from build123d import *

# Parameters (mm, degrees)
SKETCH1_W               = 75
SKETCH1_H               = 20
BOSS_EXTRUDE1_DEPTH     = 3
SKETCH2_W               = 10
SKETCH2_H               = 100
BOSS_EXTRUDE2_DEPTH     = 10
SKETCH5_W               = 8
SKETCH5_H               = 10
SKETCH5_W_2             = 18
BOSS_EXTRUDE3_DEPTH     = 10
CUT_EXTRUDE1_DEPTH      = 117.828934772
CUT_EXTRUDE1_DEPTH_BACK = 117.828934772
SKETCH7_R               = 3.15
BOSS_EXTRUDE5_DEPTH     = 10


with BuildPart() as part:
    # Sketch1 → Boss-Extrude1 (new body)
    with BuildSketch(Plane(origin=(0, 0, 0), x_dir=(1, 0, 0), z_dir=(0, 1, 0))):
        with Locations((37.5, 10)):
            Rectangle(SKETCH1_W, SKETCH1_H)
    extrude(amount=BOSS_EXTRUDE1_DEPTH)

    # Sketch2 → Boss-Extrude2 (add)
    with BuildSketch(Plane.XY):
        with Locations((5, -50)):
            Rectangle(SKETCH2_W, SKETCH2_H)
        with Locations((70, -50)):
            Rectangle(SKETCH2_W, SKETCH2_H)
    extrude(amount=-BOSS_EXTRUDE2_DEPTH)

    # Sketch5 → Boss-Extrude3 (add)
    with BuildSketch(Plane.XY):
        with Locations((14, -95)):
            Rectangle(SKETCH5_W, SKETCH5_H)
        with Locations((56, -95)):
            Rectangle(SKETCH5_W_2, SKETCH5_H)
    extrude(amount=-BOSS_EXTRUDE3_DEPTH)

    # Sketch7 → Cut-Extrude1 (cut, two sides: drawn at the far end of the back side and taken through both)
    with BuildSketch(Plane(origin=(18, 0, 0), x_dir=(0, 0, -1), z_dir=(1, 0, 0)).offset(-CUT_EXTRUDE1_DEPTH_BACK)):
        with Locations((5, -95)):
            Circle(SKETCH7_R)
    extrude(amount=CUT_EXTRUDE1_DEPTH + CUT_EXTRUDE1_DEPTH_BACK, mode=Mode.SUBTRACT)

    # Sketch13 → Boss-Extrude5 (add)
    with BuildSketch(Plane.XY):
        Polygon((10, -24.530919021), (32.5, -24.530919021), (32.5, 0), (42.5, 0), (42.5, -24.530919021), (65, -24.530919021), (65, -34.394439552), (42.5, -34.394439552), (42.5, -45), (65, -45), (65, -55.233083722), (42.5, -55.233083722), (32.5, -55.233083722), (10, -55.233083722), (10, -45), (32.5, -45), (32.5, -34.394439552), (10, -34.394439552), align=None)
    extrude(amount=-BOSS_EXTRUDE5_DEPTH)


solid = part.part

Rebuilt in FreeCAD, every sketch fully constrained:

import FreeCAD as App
import Part
import Sketcher


def add_polygon(sketch, points):
    """Adds a closed chain of lines whose ends are joined by coincident constraints."""
    first, n = sketch.GeometryCount, len(points)
    for a, b in zip(points, points[1:] + points[:1]):
        sketch.addGeometry(Part.LineSegment(App.Vector(*a, 0), App.Vector(*b, 0)), False)
    for i in range(n):
        sketch.addConstraint(Sketcher.Constraint("Coincident", first + i, 2, first + (i + 1) % n, 1))

doc = App.newDocument("Part")
params = doc.addObject("Spreadsheet::Sheet", "Params")
for row, (alias, value) in enumerate([
    ("sketch1_width", "75 mm"),
    ("sketch1_height", "20 mm"),
    ("pad1_length", "3 mm"),
    ("sketch2_width", "10 mm"),
    ("sketch2_height", "100 mm"),
    ("pad2_length", "10 mm"),
    ("sketch3_width", "8 mm"),
    ("sketch3_width2", "18 mm"),
    ("sketch3_height", "10 mm"),
    ("pad3_length", "10 mm"),
    ("sketch4_diameter", "6.3 mm"),
    ("sketch5_width", "55 mm"),
    ("sketch5_width2", "10 mm"),
    ("pad4_length", "10 mm"),
], start=1):
    params.set(f"A{row}", alias)
    params.set(f"B{row}", "=" + value)
    params.setAlias(f"B{row}", alias)

body = doc.addObject("PartDesign::Body", "Body")

sketch1 = body.newObject("Sketcher::SketchObject", "Sketch")
sketch1.AttachmentSupport = (doc.getObject("XZ_Plane"), [""])
sketch1.MapMode = "FlatFace"
add_polygon(sketch1, [(0, -20), (0, 0), (75, 0), (75, -20)])
sketch1.addConstraint(Sketcher.Constraint("Vertical", 0))
sketch1.addConstraint(Sketcher.Constraint("Horizontal", 1))
sketch1.addConstraint(Sketcher.Constraint("Vertical", 2))
sketch1.addConstraint(Sketcher.Constraint("Horizontal", 3))
sketch1.addConstraint(Sketcher.Constraint("Coincident", 0, 2, -1, 1))
sketch1.addConstraint(Sketcher.Constraint("DistanceX", 1, 1, 1, 2, 75.0))
sketch1.addConstraint(Sketcher.Constraint("DistanceY", 0, 1, 0, 2, 20.0))
sketch1.setExpression("Constraints[9]", "Params.sketch1_width")
sketch1.setExpression("Constraints[10]", "Params.sketch1_height")
pad1 = body.newObject("PartDesign::Pad", "Pad")
pad1.Profile = sketch1
pad1.setExpression("Length", "Params.pad1_length")
pad1.Reversed = True

sketch2 = body.newObject("Sketcher::SketchObject", "Sketch001")
sketch2.AttachmentSupport = (doc.getObject("XY_Plane"), [""])
sketch2.MapMode = "FlatFace"
add_polygon(sketch2, [(0, 0), (0, -100), (10, -100), (10, 0)])
add_polygon(sketch2, [(65, 0), (65, -100), (75, -100), (75, 0)])
sketch2.addConstraint(Sketcher.Constraint("Vertical", 0))
sketch2.addConstraint(Sketcher.Constraint("Horizontal", 1))
sketch2.addConstraint(Sketcher.Constraint("Vertical", 2))
sketch2.addConstraint(Sketcher.Constraint("Horizontal", 3))
sketch2.addConstraint(Sketcher.Constraint("Vertical", 4))
sketch2.addConstraint(Sketcher.Constraint("Horizontal", 5))
sketch2.addConstraint(Sketcher.Constraint("Vertical", 6))
sketch2.addConstraint(Sketcher.Constraint("Horizontal", 7))
sketch2.addConstraint(Sketcher.Constraint("Coincident", 3, 2, -1, 1))
sketch2.addConstraint(Sketcher.Constraint("PointOnObject", 6, 2, -1))
sketch2.addConstraint(Sketcher.Constraint("Horizontal", 1, 2, 4, 2))
sketch2.addConstraint(Sketcher.Constraint("Equal", 3, 5))
sketch2.addConstraint(Sketcher.Constraint("DistanceX", 1, 1, 1, 2, 10.0))
sketch2.addConstraint(Sketcher.Constraint("DistanceY", 0, 2, 0, 1, 100.0))
sketch2.addConstraint(Sketcher.Constraint("DistanceX", -1, 1, 4, 2, 65.0))
sketch2.setExpression("Constraints[20]", "Params.sketch2_width")
sketch2.setExpression("Constraints[21]", "Params.sketch2_height")
pad2 = body.newObject("PartDesign::Pad", "Pad001")
pad2.Profile = sketch2
pad2.setExpression("Length", "Params.pad2_length")
pad2.Reversed = True

sketch3 = body.newObject("Sketcher::SketchObject", "Sketch002")
sketch3.AttachmentSupport = (doc.getObject("XY_Plane"), [""])
sketch3.MapMode = "FlatFace"
add_polygon(sketch3, [(10, -90), (10, -100), (18, -100), (18, -90)])
add_polygon(sketch3, [(47, -90), (47, -100), (65, -100), (65, -90)])
sketch3.addConstraint(Sketcher.Constraint("Vertical", 0))
sketch3.addConstraint(Sketcher.Constraint("Horizontal", 1))
sketch3.addConstraint(Sketcher.Constraint("Vertical", 2))
sketch3.addConstraint(Sketcher.Constraint("Horizontal", 3))
sketch3.addConstraint(Sketcher.Constraint("Vertical", 4))
sketch3.addConstraint(Sketcher.Constraint("Horizontal", 5))
sketch3.addConstraint(Sketcher.Constraint("Vertical", 6))
sketch3.addConstraint(Sketcher.Constraint("Horizontal", 7))
sketch3.addConstraint(Sketcher.Constraint("Horizontal", 1, 2, 4, 2))
sketch3.addConstraint(Sketcher.Constraint("Horizontal", 3, 2, 6, 2))
sketch3.addConstraint(Sketcher.Constraint("DistanceX", 1, 1, 1, 2, 8.0))
sketch3.addConstraint(Sketcher.Constraint("DistanceX", 5, 1, 5, 2, 18.0))
sketch3.addConstraint(Sketcher.Constraint("DistanceY", 0, 2, 0, 1, 10.0))
sketch3.addConstraint(Sketcher.Constraint("DistanceX", -1, 1, 0, 2, 10.0))
sketch3.addConstraint(Sketcher.Constraint("DistanceY", 0, 2, -1, 1, 100.0))
sketch3.addConstraint(Sketcher.Constraint("DistanceX", -1, 1, 4, 2, 47.0))
sketch3.setExpression("Constraints[18]", "Params.sketch3_width")
sketch3.setExpression("Constraints[19]", "Params.sketch3_width2")
sketch3.setExpression("Constraints[20]", "Params.sketch3_height")
pad3 = body.newObject("PartDesign::Pad", "Pad002")
pad3.Profile = sketch3
pad3.setExpression("Length", "Params.pad3_length")
pad3.Reversed = True

sketch4 = body.newObject("Sketcher::SketchObject", "Sketch003")
sketch4.AttachmentSupport = (doc.getObject("YZ_Plane"), [""])
sketch4.MapMode = "FlatFace"
sketch4.AttachmentOffset = App.Placement(App.Vector(0, 0, 18), App.Rotation())
sketch4.addGeometry(Part.Circle(App.Vector(-95, -5, 0), App.Vector(0, 0, 1), 3.1), False)
sketch4.addConstraint(Sketcher.Constraint("Diameter", 0, 6.3))
sketch4.addConstraint(Sketcher.Constraint("DistanceX", 0, 3, -1, 1, 95.0))
sketch4.addConstraint(Sketcher.Constraint("DistanceY", 0, 3, -1, 1, 5.0))
sketch4.setExpression("Constraints[0]", "Params.sketch4_diameter")
pocket1 = body.newObject("PartDesign::Pocket", "Pocket")
pocket1.Profile = sketch4
pocket1.Type = "ThroughAll"
pocket1.Midplane = True

sketch5 = body.newObject("Sketcher::SketchObject", "Sketch004")
sketch5.AttachmentSupport = (doc.getObject("XY_Plane"), [""])
sketch5.MapMode = "FlatFace"
add_polygon(sketch5, [(32, -25), (10, -25), (10, -34), (32, -34), (32, -45), (10, -45), (10, -55), (65, -55), (65, -45), (42, -45), (42, -34), (65, -34), (65, -25), (42, -25), (42, 0), (32, 0)])
sketch5.addConstraint(Sketcher.Constraint("Horizontal", 0))
sketch5.addConstraint(Sketcher.Constraint("Vertical", 1))
sketch5.addConstraint(Sketcher.Constraint("Horizontal", 2))
sketch5.addConstraint(Sketcher.Constraint("Vertical", 3))
sketch5.addConstraint(Sketcher.Constraint("Horizontal", 4))
sketch5.addConstraint(Sketcher.Constraint("Vertical", 5))
sketch5.addConstraint(Sketcher.Constraint("Horizontal", 6))
sketch5.addConstraint(Sketcher.Constraint("Vertical", 7))
sketch5.addConstraint(Sketcher.Constraint("Horizontal", 8))
sketch5.addConstraint(Sketcher.Constraint("Vertical", 9))
sketch5.addConstraint(Sketcher.Constraint("Horizontal", 10))
sketch5.addConstraint(Sketcher.Constraint("Vertical", 11))
sketch5.addConstraint(Sketcher.Constraint("Horizontal", 12))
sketch5.addConstraint(Sketcher.Constraint("Vertical", 13))
sketch5.addConstraint(Sketcher.Constraint("Horizontal", 14))
sketch5.addConstraint(Sketcher.Constraint("Vertical", 15))
sketch5.addConstraint(Sketcher.Constraint("PointOnObject", 13, 2, -1))
sketch5.addConstraint(Sketcher.Constraint("Horizontal", 4, 2, 7, 2))
sketch5.addConstraint(Sketcher.Constraint("Horizontal", 2, 2, 9, 2))
sketch5.addConstraint(Sketcher.Constraint("Horizontal", 0, 2, 11, 2))
sketch5.addConstraint(Sketcher.Constraint("Vertical", 1, 2, 4, 2))
sketch5.addConstraint(Sketcher.Constraint("Vertical", 7, 2, 10, 2))
sketch5.addConstraint(Sketcher.Constraint("Vertical", 9, 2, 12, 2))
sketch5.addConstraint(Sketcher.Constraint("Vertical", 3, 2, 14, 2))
sketch5.addConstraint(Sketcher.Constraint("Equal", 4, 8))
sketch5.addConstraint(Sketcher.Constraint("DistanceX", 6, 1, 6, 2, 55.0))
sketch5.addConstraint(Sketcher.Constraint("DistanceX", 14, 2, 14, 1, 10.0))
sketch5.addConstraint(Sketcher.Constraint("DistanceX", -1, 1, 0, 2, 10.0))
sketch5.addConstraint(Sketcher.Constraint("DistanceY", 3, 2, -1, 1, 45.0))
sketch5.addConstraint(Sketcher.Constraint("DistanceY", 1, 2, 1, 1, 9.863521))
sketch5.addConstraint(Sketcher.Constraint("DistanceY", 3, 2, 3, 1, 10.60556))
sketch5.addConstraint(Sketcher.Constraint("DistanceY", 5, 2, 5, 1, 10.233084))
sketch5.setExpression("Constraints[41]", "Params.sketch5_width")
sketch5.setExpression("Constraints[42]", "Params.sketch5_width2")
pad4 = body.newObject("PartDesign::Pad", "Pad003")
pad4.Profile = sketch5
pad4.setExpression("Length", "Params.pad4_length")
pad4.Reversed = True

doc.recompute()
